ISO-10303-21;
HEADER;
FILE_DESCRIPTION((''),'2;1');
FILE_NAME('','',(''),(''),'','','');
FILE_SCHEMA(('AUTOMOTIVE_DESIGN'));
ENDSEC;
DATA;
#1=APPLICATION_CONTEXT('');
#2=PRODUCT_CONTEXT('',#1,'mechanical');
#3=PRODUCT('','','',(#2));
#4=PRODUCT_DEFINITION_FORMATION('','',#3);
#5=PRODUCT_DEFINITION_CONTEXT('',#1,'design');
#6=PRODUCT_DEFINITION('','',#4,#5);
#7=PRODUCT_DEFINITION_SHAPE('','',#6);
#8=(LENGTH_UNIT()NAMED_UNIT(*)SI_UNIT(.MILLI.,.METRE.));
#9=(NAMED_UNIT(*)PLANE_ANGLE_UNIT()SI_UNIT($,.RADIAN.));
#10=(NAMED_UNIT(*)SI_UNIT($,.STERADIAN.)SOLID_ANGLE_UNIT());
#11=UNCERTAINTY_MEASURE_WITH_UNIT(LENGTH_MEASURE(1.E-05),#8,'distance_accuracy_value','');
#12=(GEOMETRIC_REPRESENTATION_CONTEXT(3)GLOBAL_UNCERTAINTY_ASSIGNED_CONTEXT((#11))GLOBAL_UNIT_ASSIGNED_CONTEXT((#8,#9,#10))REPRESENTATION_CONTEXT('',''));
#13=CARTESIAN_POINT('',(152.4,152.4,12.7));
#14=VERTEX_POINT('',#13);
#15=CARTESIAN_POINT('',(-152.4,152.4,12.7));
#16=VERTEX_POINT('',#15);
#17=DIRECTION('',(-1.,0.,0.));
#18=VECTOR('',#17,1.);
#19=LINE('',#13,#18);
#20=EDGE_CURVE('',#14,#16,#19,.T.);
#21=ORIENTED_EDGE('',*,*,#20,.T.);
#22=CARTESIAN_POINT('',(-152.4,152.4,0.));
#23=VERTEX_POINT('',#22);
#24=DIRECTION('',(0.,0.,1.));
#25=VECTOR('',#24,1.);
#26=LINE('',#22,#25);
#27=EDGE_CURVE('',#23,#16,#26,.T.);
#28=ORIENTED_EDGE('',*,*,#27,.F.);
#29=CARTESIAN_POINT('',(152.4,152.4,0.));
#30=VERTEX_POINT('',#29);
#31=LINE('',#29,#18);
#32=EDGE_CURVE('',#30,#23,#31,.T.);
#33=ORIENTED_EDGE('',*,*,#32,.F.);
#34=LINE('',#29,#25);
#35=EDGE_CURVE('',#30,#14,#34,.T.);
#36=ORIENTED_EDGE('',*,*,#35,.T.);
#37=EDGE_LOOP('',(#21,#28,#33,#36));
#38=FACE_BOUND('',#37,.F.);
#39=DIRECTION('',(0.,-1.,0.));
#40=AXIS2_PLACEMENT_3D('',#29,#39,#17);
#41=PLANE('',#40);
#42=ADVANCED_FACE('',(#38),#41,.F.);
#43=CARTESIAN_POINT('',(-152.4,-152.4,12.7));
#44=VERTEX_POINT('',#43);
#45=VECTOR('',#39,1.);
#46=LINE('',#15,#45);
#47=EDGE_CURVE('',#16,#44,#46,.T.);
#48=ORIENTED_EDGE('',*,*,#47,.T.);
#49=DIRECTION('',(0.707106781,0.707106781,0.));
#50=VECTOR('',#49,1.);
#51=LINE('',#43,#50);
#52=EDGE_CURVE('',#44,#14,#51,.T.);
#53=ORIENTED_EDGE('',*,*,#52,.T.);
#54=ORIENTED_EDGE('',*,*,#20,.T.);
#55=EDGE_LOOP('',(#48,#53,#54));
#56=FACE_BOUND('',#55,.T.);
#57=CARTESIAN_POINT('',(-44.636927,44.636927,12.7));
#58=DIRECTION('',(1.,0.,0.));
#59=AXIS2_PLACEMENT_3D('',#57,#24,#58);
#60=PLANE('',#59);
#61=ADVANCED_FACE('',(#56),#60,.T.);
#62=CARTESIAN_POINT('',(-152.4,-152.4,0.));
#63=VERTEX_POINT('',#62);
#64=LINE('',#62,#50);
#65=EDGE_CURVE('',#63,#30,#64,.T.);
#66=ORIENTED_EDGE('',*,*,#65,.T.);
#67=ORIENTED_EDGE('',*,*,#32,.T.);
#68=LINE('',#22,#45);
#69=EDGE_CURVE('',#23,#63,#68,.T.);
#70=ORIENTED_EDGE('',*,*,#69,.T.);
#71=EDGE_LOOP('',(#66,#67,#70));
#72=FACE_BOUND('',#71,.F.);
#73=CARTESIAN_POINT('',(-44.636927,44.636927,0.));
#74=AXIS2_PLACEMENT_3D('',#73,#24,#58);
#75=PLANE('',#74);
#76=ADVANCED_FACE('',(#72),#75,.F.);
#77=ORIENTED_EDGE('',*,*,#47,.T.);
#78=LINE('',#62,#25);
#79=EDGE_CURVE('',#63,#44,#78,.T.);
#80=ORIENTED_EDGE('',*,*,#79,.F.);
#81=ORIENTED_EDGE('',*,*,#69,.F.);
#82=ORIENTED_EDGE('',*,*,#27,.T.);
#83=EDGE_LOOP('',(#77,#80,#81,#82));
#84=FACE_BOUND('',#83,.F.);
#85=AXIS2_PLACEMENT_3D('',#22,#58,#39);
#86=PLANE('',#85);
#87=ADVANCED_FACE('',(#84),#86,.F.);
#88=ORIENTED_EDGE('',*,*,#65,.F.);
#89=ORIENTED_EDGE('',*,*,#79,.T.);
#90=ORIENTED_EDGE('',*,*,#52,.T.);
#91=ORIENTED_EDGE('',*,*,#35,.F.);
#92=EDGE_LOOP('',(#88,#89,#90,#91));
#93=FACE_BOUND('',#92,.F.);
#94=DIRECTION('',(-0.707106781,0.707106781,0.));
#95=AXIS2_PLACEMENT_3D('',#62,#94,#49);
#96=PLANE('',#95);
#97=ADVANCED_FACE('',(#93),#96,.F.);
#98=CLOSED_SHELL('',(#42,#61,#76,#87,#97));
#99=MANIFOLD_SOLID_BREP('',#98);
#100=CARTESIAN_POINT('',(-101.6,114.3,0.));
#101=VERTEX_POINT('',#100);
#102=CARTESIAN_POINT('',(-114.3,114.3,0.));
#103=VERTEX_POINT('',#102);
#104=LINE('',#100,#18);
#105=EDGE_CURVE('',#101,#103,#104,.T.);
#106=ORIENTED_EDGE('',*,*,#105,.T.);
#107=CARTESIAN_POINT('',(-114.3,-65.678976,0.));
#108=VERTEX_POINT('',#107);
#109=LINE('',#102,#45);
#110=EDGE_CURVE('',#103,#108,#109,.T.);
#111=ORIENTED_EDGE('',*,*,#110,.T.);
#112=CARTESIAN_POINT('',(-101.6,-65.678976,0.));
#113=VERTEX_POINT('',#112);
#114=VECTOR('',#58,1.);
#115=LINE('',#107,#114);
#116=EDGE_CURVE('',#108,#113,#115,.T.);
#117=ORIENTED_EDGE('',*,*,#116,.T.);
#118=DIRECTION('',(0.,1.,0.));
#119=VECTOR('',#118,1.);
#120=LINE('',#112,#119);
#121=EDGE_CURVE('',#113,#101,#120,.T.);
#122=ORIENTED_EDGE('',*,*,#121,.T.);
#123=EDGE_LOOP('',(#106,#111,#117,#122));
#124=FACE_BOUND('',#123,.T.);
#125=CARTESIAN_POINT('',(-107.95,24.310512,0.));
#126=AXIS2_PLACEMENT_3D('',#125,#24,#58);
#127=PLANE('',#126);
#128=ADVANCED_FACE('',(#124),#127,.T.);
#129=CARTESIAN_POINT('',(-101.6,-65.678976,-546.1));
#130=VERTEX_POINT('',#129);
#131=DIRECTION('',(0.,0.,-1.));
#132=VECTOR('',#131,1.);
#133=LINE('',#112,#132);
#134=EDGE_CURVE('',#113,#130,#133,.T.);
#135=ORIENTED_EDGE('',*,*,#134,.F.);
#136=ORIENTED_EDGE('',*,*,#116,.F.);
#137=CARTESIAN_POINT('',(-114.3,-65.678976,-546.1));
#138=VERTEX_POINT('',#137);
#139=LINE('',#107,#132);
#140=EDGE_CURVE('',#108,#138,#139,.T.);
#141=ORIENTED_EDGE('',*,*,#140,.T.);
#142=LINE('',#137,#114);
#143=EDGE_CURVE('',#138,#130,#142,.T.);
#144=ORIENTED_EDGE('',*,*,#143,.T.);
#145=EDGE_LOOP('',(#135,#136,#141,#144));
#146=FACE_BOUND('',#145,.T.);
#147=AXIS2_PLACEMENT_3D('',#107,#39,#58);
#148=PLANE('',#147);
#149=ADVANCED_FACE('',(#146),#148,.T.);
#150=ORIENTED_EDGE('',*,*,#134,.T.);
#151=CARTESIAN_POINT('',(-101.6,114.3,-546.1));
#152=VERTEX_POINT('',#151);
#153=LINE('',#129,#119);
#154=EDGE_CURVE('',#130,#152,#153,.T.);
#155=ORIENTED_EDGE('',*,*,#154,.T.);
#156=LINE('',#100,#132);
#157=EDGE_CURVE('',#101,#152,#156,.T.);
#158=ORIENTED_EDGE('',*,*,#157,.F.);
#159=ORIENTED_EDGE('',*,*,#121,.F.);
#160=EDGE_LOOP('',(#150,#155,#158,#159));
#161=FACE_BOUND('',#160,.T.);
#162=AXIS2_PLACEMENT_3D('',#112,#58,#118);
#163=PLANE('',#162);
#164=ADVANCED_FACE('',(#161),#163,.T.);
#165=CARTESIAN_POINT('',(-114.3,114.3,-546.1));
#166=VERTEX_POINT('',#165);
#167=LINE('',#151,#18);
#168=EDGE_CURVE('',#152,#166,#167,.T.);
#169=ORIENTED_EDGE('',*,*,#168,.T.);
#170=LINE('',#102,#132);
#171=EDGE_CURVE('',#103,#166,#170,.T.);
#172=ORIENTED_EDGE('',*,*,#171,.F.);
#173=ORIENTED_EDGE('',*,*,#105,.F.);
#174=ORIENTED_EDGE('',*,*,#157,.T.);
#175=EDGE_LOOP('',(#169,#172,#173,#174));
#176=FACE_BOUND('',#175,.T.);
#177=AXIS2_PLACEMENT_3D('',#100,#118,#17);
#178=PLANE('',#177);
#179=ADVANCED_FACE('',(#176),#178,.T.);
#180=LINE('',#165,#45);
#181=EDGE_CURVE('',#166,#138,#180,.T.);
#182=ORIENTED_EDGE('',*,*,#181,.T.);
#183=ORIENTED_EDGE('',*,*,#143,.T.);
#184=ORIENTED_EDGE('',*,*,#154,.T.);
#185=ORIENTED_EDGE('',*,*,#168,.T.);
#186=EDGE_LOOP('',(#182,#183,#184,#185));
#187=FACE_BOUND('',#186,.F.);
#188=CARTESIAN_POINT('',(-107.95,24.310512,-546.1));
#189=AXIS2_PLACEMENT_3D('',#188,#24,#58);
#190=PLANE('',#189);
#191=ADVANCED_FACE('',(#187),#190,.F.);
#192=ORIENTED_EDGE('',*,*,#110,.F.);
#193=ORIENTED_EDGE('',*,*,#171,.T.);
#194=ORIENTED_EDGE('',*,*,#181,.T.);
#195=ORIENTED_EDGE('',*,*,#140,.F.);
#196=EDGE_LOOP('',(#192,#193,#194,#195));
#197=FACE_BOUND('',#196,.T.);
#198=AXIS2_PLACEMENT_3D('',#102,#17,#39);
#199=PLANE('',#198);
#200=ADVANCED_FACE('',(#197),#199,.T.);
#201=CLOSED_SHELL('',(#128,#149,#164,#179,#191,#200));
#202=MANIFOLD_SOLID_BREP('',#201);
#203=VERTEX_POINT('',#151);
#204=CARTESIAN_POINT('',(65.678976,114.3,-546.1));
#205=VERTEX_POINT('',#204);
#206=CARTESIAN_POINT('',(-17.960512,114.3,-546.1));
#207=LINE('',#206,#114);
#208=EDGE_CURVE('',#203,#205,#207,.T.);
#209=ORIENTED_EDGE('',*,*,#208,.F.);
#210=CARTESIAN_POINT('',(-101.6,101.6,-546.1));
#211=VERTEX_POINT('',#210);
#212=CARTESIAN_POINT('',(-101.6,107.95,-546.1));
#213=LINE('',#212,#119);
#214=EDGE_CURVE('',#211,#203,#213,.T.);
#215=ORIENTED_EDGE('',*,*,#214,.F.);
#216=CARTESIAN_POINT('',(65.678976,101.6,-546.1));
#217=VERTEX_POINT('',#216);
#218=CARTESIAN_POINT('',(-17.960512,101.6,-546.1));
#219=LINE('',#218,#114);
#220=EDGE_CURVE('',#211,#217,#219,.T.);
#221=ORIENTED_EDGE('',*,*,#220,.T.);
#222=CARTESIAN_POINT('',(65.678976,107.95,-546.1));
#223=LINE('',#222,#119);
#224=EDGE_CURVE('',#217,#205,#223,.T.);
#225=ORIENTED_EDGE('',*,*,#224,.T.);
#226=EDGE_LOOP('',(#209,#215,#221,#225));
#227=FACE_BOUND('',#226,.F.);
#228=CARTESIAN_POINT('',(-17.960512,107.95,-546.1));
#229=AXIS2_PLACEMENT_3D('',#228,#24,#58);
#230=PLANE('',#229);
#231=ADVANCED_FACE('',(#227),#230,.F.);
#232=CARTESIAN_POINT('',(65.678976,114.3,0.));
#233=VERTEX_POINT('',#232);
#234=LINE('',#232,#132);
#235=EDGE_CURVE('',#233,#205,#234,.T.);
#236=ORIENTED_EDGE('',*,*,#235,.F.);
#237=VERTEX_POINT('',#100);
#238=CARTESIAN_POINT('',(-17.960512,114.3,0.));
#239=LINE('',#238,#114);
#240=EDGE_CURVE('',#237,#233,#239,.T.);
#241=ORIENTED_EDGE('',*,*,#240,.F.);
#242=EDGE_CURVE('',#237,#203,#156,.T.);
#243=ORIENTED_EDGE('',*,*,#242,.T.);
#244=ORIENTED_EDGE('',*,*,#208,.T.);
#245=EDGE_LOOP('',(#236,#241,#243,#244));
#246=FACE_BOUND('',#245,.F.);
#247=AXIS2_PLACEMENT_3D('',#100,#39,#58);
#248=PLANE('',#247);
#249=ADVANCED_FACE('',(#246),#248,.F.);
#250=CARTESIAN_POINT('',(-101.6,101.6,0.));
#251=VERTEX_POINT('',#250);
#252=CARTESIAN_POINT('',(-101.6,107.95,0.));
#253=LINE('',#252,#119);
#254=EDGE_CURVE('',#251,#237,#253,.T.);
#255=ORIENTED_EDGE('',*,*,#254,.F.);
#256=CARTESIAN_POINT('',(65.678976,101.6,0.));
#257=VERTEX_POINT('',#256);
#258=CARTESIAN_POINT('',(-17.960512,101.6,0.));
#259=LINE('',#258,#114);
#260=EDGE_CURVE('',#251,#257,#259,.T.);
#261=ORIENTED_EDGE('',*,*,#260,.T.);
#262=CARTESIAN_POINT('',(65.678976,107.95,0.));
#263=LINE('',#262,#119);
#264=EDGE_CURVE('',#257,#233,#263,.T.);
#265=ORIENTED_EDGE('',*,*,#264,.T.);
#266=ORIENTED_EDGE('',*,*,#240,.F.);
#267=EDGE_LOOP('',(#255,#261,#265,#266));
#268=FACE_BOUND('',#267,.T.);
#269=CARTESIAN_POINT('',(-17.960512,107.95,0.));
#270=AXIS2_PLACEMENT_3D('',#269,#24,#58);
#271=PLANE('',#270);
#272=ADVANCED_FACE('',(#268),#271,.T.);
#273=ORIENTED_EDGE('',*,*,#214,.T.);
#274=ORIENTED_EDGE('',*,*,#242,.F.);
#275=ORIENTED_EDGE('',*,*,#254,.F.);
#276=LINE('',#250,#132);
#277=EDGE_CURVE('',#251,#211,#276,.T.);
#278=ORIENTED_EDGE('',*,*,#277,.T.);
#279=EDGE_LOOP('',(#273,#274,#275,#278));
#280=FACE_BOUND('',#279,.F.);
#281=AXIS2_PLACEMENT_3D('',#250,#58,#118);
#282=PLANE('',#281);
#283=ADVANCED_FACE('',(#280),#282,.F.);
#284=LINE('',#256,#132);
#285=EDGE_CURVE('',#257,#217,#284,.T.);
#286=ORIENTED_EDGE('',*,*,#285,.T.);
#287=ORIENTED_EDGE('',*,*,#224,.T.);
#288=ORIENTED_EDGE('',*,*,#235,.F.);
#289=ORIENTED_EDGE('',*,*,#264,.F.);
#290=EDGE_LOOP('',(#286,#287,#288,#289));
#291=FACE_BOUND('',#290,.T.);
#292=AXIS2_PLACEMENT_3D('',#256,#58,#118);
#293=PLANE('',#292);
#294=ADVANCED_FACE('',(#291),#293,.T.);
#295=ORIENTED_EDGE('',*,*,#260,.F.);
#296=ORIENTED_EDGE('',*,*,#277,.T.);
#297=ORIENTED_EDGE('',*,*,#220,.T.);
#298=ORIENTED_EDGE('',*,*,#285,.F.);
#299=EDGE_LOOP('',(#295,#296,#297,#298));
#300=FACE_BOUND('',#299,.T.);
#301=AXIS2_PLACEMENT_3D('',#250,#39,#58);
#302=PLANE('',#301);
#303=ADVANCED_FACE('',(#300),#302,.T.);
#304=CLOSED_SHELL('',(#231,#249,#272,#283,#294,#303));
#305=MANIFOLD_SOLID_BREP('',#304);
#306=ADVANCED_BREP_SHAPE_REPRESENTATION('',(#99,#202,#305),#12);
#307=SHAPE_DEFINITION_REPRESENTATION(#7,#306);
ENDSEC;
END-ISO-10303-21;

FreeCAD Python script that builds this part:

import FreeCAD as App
import Part
import Sketcher
Q = App.Units.Quantity


def add_polygon(sketch, points):
    """Adds a closed chain of lines whose ends are joined by coincident constraints."""
    first, n = sketch.GeometryCount, len(points)
    for a, b in zip(points, points[1:] + points[:1]):
        sketch.addGeometry(Part.LineSegment(App.Vector(*a, 0), App.Vector(*b, 0)), False)
    for i in range(n):
        sketch.addConstraint(Sketcher.Constraint("Coincident", first + i, 2, first + (i + 1) % n, 1))

doc = App.newDocument("Part")
params = doc.addObject("Spreadsheet::Sheet", "Params")
for row, (alias, value) in enumerate([
    ("sketch1_width", "12 in"),
    ("pad1_length", "0.5 in"),
    ("sketch2_width", "0.5 in"),
    ("pad2_length", "21.5 in"),
    ("sketch3_height", "0.5 in"),
    ("pad3_length", "21.5 in"),
], start=1):
    params.set(f"A{row}", alias)
    params.set(f"B{row}", "=" + value)
    params.setAlias(f"B{row}", alias)

body = doc.addObject("PartDesign::Body", "Body")

sketch1 = body.newObject("Sketcher::SketchObject", "Sketch")
sketch1.AttachmentSupport = (doc.getObject("XY_Plane"), [""])
sketch1.MapMode = "FlatFace"
add_polygon(sketch1, [(-152.4, -152.4), (152.4, 152.4), (-152.4, 152.4)])
sketch1.addConstraint([
    Sketcher.Constraint("Horizontal", 1),
    Sketcher.Constraint("Vertical", 2),
    Sketcher.Constraint("Symmetric", 0, 2, 2, 2, -1, 1),
    Sketcher.Constraint("Equal", 1, 2),
    Sketcher.Constraint("DistanceX", 1, 2, 1, 1, Q("12 in")),
])
sketch1.setExpression("Constraints[7]", "Params.sketch1_width")
pad1 = body.newObject("PartDesign::Pad", "Pad")
pad1.Profile = sketch1
pad1.setExpression("Length", "Params.pad1_length")
body2 = doc.addObject("PartDesign::Body", "Body001")

sketch2 = body2.newObject("Sketcher::SketchObject", "Sketch001")
sketch2.AttachmentSupport = (doc.getObject("XY_Plane001"), [""])
sketch2.MapMode = "FlatFace"
add_polygon(sketch2, [(-101.6, 114.3), (-114.3, 114.3), (-114.3, -65.678976), (-101.6, -65.678976)])
sketch2.addConstraint([
    Sketcher.Constraint("Horizontal", 0),
    Sketcher.Constraint("Vertical", 1),
    Sketcher.Constraint("Horizontal", 2),
    Sketcher.Constraint("Vertical", 3),
    Sketcher.Constraint("DistanceX", 0, 2, 0, 1, Q("0.5 in")),
    Sketcher.Constraint("DistanceX", 2, 2, -1, 1, Q("4 in")),
    Sketcher.Constraint("DistanceY", -1, 1, 0, 2, Q("4.5 in")),
    Sketcher.Constraint("DistanceY", 1, 2, 1, 1, 179.978976),
])
sketch2.setExpression("Constraints[8]", "Params.sketch2_width")
pad2 = body2.newObject("PartDesign::Pad", "Pad001")
pad2.Profile = sketch2
pad2.setExpression("Length", "Params.pad2_length")
pad2.Reversed = True
body3 = doc.addObject("PartDesign::Body", "Body002")

sketch3 = body3.newObject("Sketcher::SketchObject", "Sketch002")
sketch3.AttachmentSupport = (doc.getObject("XY_Plane002"), [""])
sketch3.MapMode = "FlatFace"
add_polygon(sketch3, [(-101.6, 114.3), (-101.6, 101.6), (65.678976, 101.6), (65.678976, 114.3)])
sketch3.addConstraint([
    Sketcher.Constraint("Vertical", 0),
    Sketcher.Constraint("Horizontal", 1),
    Sketcher.Constraint("Vertical", 2),
    Sketcher.Constraint("Horizontal", 3),
    Sketcher.Constraint("DistanceY", 0, 2, 0, 1, Q("0.5 in")),
    Sketcher.Constraint("DistanceX", 0, 2, -1, 1, Q("4 in")),
    Sketcher.Constraint("DistanceY", -1, 1, 0, 2, Q("4 in")),
    Sketcher.Constraint("DistanceX", 1, 1, 1, 2, 167.278976),
])
sketch3.setExpression("Constraints[8]", "Params.sketch3_height")
pad3 = body3.newObject("PartDesign::Pad", "Pad002")
pad3.Profile = sketch3
pad3.setExpression("Length", "Params.pad3_length")
pad3.Reversed = True

doc.recompute()
